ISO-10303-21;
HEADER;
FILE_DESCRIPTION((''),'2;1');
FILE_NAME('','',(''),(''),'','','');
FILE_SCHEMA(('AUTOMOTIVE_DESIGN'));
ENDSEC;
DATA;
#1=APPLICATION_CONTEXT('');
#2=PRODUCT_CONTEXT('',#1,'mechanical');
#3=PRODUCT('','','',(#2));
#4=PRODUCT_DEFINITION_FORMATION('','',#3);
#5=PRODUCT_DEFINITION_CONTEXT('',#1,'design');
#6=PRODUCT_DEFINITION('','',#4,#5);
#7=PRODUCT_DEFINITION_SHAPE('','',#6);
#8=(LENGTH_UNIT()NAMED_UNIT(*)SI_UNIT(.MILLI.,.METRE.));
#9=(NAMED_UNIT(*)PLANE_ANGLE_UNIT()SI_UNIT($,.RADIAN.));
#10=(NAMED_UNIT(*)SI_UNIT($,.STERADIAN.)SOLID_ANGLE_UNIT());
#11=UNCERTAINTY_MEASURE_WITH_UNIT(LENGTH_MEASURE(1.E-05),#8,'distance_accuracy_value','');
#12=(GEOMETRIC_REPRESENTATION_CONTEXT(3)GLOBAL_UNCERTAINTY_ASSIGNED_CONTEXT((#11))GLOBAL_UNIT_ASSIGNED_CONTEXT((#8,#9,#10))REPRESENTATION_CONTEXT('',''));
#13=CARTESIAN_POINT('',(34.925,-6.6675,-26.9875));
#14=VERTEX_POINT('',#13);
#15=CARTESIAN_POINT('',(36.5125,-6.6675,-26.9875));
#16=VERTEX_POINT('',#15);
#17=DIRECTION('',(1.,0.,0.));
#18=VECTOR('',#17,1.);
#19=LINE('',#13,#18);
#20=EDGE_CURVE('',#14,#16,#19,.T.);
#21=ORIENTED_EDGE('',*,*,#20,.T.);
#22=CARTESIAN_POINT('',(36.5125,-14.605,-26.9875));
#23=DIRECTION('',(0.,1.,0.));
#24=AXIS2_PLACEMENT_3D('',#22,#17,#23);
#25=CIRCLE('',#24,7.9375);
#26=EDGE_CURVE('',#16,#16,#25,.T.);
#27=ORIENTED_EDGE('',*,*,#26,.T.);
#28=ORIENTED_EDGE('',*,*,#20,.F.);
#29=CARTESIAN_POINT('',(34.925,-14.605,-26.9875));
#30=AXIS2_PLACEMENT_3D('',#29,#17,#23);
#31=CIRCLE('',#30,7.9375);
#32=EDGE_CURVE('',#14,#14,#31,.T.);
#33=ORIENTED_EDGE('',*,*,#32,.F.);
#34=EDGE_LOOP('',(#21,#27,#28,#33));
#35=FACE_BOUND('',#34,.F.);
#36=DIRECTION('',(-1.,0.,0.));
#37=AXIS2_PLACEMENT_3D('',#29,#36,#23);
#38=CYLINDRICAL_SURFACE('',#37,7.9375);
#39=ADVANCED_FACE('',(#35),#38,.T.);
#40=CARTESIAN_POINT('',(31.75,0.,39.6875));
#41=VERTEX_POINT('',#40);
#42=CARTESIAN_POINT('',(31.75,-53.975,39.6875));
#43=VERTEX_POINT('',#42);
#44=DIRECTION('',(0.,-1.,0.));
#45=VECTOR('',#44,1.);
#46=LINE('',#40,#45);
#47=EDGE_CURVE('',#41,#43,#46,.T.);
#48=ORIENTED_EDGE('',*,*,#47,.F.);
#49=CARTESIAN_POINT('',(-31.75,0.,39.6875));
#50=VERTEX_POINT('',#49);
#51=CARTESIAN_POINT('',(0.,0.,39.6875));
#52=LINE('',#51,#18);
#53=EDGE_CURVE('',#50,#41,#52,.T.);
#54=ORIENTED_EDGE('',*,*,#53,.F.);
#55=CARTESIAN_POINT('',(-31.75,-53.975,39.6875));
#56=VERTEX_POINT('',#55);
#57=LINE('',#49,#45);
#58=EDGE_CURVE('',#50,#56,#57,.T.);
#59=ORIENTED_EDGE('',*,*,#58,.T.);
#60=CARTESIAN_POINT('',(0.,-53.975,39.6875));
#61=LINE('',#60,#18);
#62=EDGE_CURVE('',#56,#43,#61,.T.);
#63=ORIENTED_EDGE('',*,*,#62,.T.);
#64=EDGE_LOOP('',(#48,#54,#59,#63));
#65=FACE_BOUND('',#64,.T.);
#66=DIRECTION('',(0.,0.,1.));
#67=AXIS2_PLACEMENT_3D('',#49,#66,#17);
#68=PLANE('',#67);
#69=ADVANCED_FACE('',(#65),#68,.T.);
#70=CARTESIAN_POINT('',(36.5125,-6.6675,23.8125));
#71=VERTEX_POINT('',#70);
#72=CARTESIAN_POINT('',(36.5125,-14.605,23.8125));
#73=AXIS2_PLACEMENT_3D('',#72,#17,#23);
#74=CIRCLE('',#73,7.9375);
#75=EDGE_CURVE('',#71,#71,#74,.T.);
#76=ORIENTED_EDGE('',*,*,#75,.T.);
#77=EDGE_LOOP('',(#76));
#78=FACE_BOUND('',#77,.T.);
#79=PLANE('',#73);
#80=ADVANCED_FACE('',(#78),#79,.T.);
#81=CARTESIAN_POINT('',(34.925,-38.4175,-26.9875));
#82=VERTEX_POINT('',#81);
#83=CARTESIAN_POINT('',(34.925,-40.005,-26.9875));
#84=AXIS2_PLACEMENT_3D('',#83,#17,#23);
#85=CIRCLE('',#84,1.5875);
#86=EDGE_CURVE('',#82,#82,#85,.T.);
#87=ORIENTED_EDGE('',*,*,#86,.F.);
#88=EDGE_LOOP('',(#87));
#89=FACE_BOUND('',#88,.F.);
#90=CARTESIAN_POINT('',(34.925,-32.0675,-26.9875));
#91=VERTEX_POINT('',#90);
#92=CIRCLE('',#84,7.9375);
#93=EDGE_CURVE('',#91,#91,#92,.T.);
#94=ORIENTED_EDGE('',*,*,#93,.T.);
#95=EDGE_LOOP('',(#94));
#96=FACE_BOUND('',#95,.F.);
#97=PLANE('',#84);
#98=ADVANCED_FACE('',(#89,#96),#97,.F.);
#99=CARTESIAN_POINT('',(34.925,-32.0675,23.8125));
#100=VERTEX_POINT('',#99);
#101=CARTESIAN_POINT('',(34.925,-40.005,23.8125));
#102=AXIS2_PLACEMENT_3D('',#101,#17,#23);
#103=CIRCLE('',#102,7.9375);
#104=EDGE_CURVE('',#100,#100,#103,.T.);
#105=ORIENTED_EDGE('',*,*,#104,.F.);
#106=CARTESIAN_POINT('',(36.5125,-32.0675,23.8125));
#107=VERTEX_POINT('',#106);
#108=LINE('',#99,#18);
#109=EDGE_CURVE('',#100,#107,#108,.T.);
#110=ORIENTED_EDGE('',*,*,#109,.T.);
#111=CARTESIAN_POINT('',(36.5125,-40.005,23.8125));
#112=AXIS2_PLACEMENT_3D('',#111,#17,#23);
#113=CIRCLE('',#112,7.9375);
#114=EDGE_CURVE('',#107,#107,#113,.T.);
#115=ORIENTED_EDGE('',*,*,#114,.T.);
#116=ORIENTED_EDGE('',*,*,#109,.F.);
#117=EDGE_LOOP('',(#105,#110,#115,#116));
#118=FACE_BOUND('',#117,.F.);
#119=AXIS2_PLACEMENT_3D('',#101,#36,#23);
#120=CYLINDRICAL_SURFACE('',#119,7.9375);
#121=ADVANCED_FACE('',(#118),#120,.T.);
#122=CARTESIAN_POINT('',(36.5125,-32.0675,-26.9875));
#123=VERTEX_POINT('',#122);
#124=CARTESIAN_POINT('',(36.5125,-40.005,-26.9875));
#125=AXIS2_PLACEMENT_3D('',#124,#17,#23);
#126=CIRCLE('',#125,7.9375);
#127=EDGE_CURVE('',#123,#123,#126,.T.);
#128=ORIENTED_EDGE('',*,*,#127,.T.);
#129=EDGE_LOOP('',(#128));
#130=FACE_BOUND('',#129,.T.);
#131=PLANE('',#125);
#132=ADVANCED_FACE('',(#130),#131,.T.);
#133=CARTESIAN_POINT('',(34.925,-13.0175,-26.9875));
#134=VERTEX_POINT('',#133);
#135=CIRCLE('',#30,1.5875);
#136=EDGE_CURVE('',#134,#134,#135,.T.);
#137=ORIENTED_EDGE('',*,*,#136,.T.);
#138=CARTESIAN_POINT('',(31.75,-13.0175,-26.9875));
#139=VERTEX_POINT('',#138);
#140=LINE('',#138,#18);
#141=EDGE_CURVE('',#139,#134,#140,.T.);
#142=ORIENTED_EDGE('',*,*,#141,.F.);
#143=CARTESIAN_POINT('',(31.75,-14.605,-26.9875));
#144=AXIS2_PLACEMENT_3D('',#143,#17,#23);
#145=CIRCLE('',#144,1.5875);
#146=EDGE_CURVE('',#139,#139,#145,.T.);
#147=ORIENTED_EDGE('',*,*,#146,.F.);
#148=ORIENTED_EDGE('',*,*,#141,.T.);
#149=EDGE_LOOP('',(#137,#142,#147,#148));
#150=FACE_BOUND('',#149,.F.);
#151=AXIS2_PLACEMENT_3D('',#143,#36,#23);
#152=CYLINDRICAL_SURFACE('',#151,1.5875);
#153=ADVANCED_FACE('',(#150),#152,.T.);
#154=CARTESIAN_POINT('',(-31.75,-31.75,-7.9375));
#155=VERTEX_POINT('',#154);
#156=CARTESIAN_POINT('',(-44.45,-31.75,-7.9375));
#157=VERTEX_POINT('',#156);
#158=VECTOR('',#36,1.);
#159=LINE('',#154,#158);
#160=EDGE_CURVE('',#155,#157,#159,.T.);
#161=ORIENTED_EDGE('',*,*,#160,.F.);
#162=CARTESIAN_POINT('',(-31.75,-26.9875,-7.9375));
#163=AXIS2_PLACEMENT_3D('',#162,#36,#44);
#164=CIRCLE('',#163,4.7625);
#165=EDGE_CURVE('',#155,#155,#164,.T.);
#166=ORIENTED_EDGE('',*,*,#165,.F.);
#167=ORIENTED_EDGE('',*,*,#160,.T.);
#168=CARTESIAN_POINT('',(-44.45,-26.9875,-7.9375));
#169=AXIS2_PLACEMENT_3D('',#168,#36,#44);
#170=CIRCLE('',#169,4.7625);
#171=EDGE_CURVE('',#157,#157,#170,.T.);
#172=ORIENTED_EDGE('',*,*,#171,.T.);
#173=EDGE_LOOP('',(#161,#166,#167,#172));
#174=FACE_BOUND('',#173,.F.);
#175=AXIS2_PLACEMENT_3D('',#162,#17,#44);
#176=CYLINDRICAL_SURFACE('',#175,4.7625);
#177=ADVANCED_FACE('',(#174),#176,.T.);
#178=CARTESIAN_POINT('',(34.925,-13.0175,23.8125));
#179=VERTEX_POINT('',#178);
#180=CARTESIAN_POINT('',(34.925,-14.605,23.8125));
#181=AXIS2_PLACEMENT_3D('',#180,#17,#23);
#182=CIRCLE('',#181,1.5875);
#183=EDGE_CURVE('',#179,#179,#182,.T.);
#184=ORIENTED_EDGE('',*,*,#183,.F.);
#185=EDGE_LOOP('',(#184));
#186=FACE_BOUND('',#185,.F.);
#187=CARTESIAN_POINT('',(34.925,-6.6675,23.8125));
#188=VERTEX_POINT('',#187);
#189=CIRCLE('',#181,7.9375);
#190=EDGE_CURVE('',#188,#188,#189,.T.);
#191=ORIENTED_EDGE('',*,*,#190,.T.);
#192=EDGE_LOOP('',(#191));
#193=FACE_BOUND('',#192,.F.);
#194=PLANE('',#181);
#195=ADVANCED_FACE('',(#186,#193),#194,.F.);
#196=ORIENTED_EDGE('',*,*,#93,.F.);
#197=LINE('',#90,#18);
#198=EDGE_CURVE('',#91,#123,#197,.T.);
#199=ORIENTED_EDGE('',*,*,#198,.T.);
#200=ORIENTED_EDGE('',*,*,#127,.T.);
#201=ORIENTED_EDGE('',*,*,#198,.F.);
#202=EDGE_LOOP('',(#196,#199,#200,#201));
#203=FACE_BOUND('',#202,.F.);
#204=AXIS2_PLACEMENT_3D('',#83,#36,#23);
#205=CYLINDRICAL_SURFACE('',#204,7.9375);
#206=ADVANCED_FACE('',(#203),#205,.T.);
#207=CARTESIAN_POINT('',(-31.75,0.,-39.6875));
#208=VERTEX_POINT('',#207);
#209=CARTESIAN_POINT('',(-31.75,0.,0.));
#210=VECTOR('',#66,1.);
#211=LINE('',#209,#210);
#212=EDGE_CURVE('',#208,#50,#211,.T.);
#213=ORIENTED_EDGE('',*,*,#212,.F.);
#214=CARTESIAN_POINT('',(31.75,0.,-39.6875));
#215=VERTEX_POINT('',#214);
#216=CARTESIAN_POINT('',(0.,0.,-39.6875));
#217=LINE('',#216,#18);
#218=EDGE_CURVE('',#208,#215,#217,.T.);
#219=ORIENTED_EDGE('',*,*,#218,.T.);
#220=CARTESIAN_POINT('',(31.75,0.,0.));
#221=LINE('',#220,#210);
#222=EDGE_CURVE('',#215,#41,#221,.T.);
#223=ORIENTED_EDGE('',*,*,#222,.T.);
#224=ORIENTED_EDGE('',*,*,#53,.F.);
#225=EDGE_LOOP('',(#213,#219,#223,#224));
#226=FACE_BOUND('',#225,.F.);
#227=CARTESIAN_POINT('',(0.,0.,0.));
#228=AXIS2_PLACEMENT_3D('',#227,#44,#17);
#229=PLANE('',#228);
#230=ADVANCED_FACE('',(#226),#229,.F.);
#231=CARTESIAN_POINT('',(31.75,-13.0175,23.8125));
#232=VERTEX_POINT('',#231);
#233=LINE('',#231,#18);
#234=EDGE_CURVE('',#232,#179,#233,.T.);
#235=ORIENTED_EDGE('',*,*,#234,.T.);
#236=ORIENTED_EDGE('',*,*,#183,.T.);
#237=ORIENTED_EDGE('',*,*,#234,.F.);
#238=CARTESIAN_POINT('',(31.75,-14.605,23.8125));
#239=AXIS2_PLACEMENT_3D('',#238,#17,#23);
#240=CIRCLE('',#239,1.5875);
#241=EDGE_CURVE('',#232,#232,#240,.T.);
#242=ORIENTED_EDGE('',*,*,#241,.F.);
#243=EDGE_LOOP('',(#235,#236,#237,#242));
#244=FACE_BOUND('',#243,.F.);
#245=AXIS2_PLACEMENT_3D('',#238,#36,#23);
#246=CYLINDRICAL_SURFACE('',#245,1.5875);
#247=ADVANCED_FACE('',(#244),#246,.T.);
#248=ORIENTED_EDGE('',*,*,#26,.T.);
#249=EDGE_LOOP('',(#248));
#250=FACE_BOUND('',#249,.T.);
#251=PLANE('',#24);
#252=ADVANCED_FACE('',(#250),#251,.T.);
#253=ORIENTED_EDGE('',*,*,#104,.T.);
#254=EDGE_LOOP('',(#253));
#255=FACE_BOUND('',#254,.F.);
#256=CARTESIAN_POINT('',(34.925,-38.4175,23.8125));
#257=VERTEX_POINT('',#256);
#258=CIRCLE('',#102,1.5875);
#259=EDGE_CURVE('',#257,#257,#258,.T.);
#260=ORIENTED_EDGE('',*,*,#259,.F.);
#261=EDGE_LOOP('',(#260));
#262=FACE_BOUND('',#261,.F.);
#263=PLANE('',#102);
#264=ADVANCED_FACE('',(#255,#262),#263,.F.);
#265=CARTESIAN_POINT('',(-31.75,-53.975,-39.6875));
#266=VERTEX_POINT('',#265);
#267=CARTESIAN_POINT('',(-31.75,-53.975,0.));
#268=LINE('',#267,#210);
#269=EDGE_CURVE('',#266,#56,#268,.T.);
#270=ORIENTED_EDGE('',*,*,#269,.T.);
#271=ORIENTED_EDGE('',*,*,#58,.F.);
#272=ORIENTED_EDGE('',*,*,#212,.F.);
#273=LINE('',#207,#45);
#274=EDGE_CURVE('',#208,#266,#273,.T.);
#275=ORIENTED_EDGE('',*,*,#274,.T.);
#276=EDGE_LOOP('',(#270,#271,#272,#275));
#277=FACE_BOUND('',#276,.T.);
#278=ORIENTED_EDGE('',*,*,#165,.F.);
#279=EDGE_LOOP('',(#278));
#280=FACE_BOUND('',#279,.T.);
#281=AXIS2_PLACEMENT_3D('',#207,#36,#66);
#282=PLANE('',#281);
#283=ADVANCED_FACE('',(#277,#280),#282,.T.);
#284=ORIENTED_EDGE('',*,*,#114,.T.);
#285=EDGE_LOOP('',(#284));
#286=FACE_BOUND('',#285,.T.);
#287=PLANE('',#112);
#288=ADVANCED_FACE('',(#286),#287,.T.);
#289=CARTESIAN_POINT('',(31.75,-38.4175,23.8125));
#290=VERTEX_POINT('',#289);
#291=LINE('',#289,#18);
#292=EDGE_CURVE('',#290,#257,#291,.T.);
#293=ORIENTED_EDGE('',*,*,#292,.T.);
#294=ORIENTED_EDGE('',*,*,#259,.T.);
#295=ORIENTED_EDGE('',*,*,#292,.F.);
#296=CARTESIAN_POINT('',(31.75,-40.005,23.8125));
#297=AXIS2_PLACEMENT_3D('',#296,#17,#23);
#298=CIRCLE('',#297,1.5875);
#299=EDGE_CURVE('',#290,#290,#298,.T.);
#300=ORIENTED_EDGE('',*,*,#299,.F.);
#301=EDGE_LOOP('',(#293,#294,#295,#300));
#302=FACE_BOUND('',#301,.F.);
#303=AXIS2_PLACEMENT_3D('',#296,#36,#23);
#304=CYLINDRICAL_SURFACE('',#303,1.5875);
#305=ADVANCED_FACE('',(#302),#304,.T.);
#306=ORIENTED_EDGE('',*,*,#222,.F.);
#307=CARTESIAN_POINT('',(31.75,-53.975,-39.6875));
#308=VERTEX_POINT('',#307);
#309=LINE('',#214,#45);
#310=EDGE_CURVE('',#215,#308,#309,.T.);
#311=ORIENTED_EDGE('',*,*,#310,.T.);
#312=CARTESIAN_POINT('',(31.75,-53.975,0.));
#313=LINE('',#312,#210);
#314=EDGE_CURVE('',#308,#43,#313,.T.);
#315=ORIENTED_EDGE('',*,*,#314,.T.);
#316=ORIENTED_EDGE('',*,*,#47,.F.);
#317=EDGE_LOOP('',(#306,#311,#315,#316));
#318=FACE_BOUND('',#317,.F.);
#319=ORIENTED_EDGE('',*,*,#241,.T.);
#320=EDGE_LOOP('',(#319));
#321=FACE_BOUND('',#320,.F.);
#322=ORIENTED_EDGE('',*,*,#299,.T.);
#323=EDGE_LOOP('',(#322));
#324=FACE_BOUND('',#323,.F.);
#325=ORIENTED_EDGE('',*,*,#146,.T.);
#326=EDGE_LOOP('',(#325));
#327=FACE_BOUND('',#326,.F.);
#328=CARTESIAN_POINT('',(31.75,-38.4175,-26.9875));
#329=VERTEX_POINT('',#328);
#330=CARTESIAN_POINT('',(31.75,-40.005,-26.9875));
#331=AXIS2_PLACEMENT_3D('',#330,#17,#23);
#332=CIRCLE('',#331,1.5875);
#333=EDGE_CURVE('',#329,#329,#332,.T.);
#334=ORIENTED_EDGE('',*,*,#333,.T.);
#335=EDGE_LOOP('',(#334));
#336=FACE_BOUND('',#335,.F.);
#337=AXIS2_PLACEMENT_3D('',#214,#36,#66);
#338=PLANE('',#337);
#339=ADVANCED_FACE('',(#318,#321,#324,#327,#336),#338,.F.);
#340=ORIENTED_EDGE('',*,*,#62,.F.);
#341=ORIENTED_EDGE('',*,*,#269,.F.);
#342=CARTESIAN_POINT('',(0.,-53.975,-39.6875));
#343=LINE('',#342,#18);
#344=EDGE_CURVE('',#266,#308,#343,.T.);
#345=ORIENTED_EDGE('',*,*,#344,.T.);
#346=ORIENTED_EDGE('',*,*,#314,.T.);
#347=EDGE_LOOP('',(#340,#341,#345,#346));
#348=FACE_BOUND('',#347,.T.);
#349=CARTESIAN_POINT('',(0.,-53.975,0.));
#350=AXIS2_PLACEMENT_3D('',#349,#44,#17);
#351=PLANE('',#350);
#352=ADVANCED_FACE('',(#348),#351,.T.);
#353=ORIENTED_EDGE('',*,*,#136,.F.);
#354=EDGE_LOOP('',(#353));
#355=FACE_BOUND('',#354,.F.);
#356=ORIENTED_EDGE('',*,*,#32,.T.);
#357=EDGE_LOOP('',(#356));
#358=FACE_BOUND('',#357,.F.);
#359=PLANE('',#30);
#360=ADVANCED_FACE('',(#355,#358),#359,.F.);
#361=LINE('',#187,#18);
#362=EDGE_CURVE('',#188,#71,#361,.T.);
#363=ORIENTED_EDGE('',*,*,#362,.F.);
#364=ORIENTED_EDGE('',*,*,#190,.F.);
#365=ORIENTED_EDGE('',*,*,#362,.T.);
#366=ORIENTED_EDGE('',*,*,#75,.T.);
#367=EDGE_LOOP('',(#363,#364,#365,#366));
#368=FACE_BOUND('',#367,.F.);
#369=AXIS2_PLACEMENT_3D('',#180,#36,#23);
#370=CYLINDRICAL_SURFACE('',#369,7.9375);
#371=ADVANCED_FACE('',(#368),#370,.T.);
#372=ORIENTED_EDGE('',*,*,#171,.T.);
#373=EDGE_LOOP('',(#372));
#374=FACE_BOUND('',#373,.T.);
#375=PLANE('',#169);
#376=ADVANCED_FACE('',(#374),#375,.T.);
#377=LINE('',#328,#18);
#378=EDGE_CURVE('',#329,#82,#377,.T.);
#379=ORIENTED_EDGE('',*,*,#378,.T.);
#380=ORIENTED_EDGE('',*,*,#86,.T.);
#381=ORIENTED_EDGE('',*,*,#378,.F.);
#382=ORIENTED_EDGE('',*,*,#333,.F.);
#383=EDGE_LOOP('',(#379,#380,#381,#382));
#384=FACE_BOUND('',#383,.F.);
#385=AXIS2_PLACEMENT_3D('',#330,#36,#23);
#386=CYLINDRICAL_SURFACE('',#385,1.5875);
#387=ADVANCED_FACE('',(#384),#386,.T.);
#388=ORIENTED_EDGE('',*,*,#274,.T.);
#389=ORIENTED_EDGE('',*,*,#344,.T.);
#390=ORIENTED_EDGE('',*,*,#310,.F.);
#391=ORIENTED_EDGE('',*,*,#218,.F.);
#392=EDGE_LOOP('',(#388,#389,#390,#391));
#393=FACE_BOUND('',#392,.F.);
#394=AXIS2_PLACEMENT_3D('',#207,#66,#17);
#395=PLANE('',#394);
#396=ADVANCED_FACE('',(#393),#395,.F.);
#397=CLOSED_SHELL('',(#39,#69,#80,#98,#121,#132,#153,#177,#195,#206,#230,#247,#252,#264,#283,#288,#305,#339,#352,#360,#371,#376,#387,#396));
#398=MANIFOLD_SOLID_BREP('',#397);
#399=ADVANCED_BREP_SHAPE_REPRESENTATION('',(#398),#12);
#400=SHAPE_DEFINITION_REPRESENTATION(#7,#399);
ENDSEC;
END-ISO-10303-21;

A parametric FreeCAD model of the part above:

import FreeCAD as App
import Part
import Sketcher
Q = App.Units.Quantity


def add_polygon(sketch, points):
    """Adds a closed chain of lines whose ends are joined by coincident constraints."""
    first, n = sketch.GeometryCount, len(points)
    for a, b in zip(points, points[1:] + points[:1]):
        sketch.addGeometry(Part.LineSegment(App.Vector(*a, 0), App.Vector(*b, 0)), False)
    for i in range(n):
        sketch.addConstraint(Sketcher.Constraint("Coincident", first + i, 2, first + (i + 1) % n, 1))

doc = App.newDocument("Part")
body = doc.addObject("PartDesign::Body", "Body")

# Sketch on XZ plane
sketch1 = body.newObject("Sketcher::SketchObject", "Sketch")
sketch1.AttachmentSupport = (doc.getObject("XZ_Plane"), [""])
sketch1.MapMode = "FlatFace"
add_polygon(sketch1, [(-32, 40), (-32, -40), (32, -40), (32, 40)])  # lines 0-3
sketch1.addConstraint([
    Sketcher.Constraint("Vertical", 0),
    Sketcher.Constraint("Horizontal", 1),
    Sketcher.Constraint("Vertical", 2),
    Sketcher.Constraint("Horizontal", 3),
    Sketcher.Constraint("Symmetric", 0, 2, 2, 2, -1, 1),
    Sketcher.Constraint("DistanceX", 1, 1, 1, 2, Q("2.5 in")),
    Sketcher.Constraint("DistanceY", 0, 2, 0, 1, Q("3.125 in")),
])
pad1 = body.newObject("PartDesign::Pad", "Pad")
pad1.Profile = sketch1
pad1.Length = Q("2.125 in")

# Sketch on YZ plane
sketch2 = body.newObject("Sketcher::SketchObject", "Sketch001")
sketch2.AttachmentSupport = (doc.getObject("YZ_Plane"), [""])
sketch2.MapMode = "FlatFace"
sketch2.AttachmentOffset = App.Placement(App.Vector(0, 0, 1.25 * 25.4), App.Rotation())
sketch2.addGeometry([
    Part.Circle(App.Vector(-40, 23.8, 0), App.Vector(0, 0, 1), 1.6),
    Part.Circle(App.Vector(-40, -27, 0), App.Vector(0, 0, 1), 1.6),
    Part.Circle(App.Vector(-14.6, 23.8, 0), App.Vector(0, 0, 1), 1.6),
    Part.Circle(App.Vector(-14.6, -27, 0), App.Vector(0, 0, 1), 1.6),
], False)
sketch2.addConstraint([
    Sketcher.Constraint("Equal", 0, 1),
    Sketcher.Constraint("Equal", 1, 2),
    Sketcher.Constraint("Equal", 2, 3),
    Sketcher.Constraint("Horizontal", 0, 3, 2, 3),
    Sketcher.Constraint("Horizontal", 1, 3, 3, 3),
    Sketcher.Constraint("Vertical", 0, 3, 1, 3),
    Sketcher.Constraint("Vertical", 2, 3, 3, 3),
    Sketcher.Constraint("Diameter", 0, Q("0.125 in")),
    Sketcher.Constraint("DistanceY", 1, 3, 0, 3, Q("2 in")),
    Sketcher.Constraint("DistanceX", 0, 3, 2, 3, Q("1 in")),
    Sketcher.Constraint("DistanceX", 0, 3, -1, 1, Q("1.575 in")),
    Sketcher.Constraint("DistanceY", -1, 1, 0, 3, Q("0.9375 in")),
])
pad2 = body.newObject("PartDesign::Pad", "Pad001")
pad2.Profile = sketch2
pad2.Length = Q("0.125 in")

# Sketch on YZ plane
sketch3 = body.newObject("Sketcher::SketchObject", "Sketch002")
sketch3.AttachmentSupport = (doc.getObject("YZ_Plane"), [""])
sketch3.MapMode = "FlatFace"
sketch3.AttachmentOffset = App.Placement(App.Vector(0, 0, 1.375 * 25.4), App.Rotation())
sketch3.addGeometry([
    Part.Circle(App.Vector(-40, 24, 0), App.Vector(0, 0, 1), 8),
    Part.Circle(App.Vector(-15, 24, 0), App.Vector(0, 0, 1), 8),
    Part.Circle(App.Vector(-40, -27, 0), App.Vector(0, 0, 1), 8),
    Part.Circle(App.Vector(-15, -27, 0), App.Vector(0, 0, 1), 8),
], False)
sketch3.addConstraint([
    Sketcher.Constraint("Equal", 0, 1),
    Sketcher.Constraint("Equal", 1, 2),
    Sketcher.Constraint("Equal", 2, 3),
    Sketcher.Constraint("Horizontal", 0, 3, 1, 3),
    Sketcher.Constraint("Horizontal", 2, 3, 3, 3),
    Sketcher.Constraint("Vertical", 0, 3, 2, 3),
    Sketcher.Constraint("Vertical", 1, 3, 3, 3),
    Sketcher.Constraint("Diameter", 0, Q("0.625 in")),
    Sketcher.Constraint("DistanceX", 0, 3, 1, 3, Q("1 in")),
    Sketcher.Constraint("DistanceY", 2, 3, 0, 3, Q("2 in")),
    Sketcher.Constraint("DistanceX", 0, 3, -1, 1, Q("1.575 in")),
    Sketcher.Constraint("DistanceY", -1, 1, 0, 3, Q("0.9375 in")),
])
pad3 = body.newObject("PartDesign::Pad", "Pad002")
pad3.Profile = sketch3
pad3.Length = Q("0.0625 in")

# Sketch on YZ plane
sketch4 = body.newObject("Sketcher::SketchObject", "Sketch003")
sketch4.AttachmentSupport = (doc.getObject("YZ_Plane"), [""])
sketch4.MapMode = "FlatFace"
sketch4.AttachmentOffset = App.Placement(App.Vector(0, 0, -1.25 * 25.4), App.Rotation())
sketch4.addGeometry(Part.Circle(App.Vector(-27, -7.9, 0), App.Vector(0, 0, 1), 4.8), False)
sketch4.addConstraint([
    Sketcher.Constraint("Diameter", 0, Q("0.375 in")),
    Sketcher.Constraint("DistanceX", 0, 3, -1, 1, Q("1.0625 in")),
    Sketcher.Constraint("DistanceY", 0, 3, -1, 1, Q("0.3125 in")),
])
pad4 = body.newObject("PartDesign::Pad", "Pad003")
pad4.Profile = sketch4
pad4.Length = Q("0.5 in")
pad4.Reversed = True

doc.recompute()
